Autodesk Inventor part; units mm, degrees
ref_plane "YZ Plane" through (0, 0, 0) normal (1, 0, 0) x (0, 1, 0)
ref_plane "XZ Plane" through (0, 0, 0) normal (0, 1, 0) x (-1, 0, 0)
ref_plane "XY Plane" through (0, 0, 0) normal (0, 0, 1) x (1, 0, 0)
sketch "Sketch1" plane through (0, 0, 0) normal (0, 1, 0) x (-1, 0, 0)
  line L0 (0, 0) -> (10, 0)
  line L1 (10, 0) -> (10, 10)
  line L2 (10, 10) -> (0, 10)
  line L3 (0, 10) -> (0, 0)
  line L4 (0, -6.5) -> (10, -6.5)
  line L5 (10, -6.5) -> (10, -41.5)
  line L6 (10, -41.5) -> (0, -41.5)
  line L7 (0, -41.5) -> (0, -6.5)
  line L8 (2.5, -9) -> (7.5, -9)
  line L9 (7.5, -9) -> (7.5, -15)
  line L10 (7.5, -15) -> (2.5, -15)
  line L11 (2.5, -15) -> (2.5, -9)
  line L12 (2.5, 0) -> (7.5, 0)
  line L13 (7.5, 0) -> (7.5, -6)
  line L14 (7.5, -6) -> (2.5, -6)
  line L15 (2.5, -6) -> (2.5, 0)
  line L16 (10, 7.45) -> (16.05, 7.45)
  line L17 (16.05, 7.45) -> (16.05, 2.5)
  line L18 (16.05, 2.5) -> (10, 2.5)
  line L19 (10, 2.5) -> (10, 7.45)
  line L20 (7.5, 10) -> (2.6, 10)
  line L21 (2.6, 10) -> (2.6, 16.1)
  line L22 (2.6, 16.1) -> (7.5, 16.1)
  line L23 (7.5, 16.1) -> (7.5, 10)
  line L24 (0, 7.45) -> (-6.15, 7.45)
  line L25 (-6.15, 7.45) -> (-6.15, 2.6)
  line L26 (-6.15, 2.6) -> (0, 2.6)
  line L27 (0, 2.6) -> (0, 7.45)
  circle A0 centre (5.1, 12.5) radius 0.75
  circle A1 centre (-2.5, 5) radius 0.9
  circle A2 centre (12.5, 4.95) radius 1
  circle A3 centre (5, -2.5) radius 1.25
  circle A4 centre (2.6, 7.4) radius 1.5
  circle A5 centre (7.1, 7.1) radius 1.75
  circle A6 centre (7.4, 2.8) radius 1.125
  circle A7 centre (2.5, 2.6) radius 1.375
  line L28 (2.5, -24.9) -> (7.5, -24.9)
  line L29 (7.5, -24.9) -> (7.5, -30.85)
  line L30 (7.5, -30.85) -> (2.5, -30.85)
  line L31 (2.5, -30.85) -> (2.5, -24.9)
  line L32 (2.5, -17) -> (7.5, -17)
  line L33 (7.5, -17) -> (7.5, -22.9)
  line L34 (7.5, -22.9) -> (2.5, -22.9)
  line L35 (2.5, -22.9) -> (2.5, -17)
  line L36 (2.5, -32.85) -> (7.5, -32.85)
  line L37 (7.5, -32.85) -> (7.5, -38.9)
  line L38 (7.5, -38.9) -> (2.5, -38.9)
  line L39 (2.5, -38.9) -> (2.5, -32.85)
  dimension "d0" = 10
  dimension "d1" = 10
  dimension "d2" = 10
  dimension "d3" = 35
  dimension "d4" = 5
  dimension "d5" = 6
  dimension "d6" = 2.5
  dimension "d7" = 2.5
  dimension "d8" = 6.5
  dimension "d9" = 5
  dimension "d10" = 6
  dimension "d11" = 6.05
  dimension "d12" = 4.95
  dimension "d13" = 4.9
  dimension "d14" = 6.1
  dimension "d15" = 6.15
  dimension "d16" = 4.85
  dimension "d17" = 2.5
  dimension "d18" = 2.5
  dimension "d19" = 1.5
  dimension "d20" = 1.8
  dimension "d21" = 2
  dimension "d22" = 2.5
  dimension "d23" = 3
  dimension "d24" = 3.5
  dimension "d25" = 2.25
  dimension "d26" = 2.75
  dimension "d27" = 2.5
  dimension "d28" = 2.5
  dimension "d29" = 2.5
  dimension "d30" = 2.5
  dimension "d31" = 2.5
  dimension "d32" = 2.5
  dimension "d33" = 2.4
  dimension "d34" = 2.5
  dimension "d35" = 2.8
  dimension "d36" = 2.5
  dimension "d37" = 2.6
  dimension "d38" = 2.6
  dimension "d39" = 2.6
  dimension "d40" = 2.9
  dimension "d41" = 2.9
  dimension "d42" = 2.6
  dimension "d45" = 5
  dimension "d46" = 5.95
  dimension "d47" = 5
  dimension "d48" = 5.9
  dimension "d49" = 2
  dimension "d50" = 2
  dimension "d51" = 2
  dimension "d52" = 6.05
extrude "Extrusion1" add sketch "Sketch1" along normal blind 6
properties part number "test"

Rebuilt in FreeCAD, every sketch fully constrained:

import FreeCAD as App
import Part
import Sketcher
from FreeCAD import Vector
Q = App.Units.Quantity


def add_polygon(sketch, points):
    """Adds a closed chain of lines whose ends are joined by coincident constraints."""
    first, n = sketch.GeometryCount, len(points)
    for a, b in zip(points, points[1:] + points[:1]):
        sketch.addGeometry(Part.LineSegment(App.Vector(*a, 0), App.Vector(*b, 0)), False)
    for i in range(n):
        sketch.addConstraint(Sketcher.Constraint("Coincident", first + i, 2, first + (i + 1) % n, 1))

doc = App.newDocument("Part")
params = doc.addObject("Spreadsheet::Sheet", "Params")
for row, (alias, value) in enumerate([
    ("sketch1_diameter", "3 mm"),
    ("sketch1_diameter2", "2 mm"),
    ("sketch1_diameter3", "3.5 mm"),
    ("sketch1_diameter4", "1.8 mm"),
    ("sketch1_diameter5", "1.5 mm"),
    ("pad1_length", "6 mm"),
], start=1):
    params.set(f"A{row}", alias)
    params.set(f"B{row}", "=" + value)
    params.setAlias(f"B{row}", alias)

body = doc.addObject("PartDesign::Body", "Body")
body.AllowCompound = True

sketch1 = doc.addObject("Sketcher::SketchObject", "Sketch")
body.addObject(sketch1)
sketch1.AttachmentSupport = (doc.XZ_Plane, [""])
sketch1.MapMode = "FlatFace"
add_polygon(sketch1, [(0, 2.6), (0, 0), (-2.5, 0), (-2.5, -6), (-7.5, -6), (-7.5, 0), (-10, 0), (-10, 2.5), (-16.1, 2.5), (-16.1, 7.5), (-10, 7.5), (-10, 10), (-7.5, 10), (-7.5, 16.1), (-2.6, 16.1), (-2.6, 10), (0, 10), (0, 7.5), (6.2, 7.5), (6.2, 2.6)])
sketch1.addGeometry(Part.Circle(Vector(-2.5, 2.6, 0), Vector(0, 0, 1), 1.4), False)
sketch1.addGeometry(Part.Circle(Vector(-2.6, 7.4, 0), Vector(0, 0, 1), 1.5), False)
sketch1.addGeometry(Part.Circle(Vector(-7.4, 2.8, 0), Vector(0, 0, 1), 1.1), False)
sketch1.addGeometry(Part.Circle(Vector(-7.1, 7.1, 0), Vector(0, 0, 1), 1.8), False)
sketch1.addGeometry(Part.Circle(Vector(2.5, 5, 0), Vector(0, 0, 1), 0.9), False)
sketch1.addGeometry(Part.Circle(Vector(-5.1, 12.5, 0), Vector(0, 0, 1), 0.8), False)
sketch1.addGeometry(Part.Circle(Vector(-12.5, 5, 0), Vector(0, 0, 1), 1), False)
sketch1.addGeometry(Part.Circle(Vector(-5, -2.5, 0), Vector(0, 0, 1), 1.2), False)
add_polygon(sketch1, [(-10, -6.5), (0, -6.5), (0, -41.5), (-10, -41.5)])
add_polygon(sketch1, [(-2.5, -38.9), (-2.5, -32.9), (-7.5, -32.9), (-7.5, -38.9)])
add_polygon(sketch1, [(-2.5, -30.9), (-2.5, -24.9), (-7.5, -24.9), (-7.5, -30.9)])
add_polygon(sketch1, [(-2.5, -22.9), (-2.5, -17), (-7.5, -17), (-7.5, -22.9)])
add_polygon(sketch1, [(-2.5, -15), (-2.5, -9), (-7.5, -9), (-7.5, -15)])
sketch1.addConstraint(Sketcher.Constraint("Vertical", 0))
sketch1.addConstraint(Sketcher.Constraint("Horizontal", 1))
sketch1.addConstraint(Sketcher.Constraint("Vertical", 2))
sketch1.addConstraint(Sketcher.Constraint("Horizontal", 3))
sketch1.addConstraint(Sketcher.Constraint("Vertical", 4))
sketch1.addConstraint(Sketcher.Constraint("Horizontal", 5))
sketch1.addConstraint(Sketcher.Constraint("Vertical", 6))
sketch1.addConstraint(Sketcher.Constraint("Horizontal", 7))
sketch1.addConstraint(Sketcher.Constraint("Vertical", 8))
sketch1.addConstraint(Sketcher.Constraint("Horizontal", 9))
sketch1.addConstraint(Sketcher.Constraint("Vertical", 10))
sketch1.addConstraint(Sketcher.Constraint("Horizontal", 11))
sketch1.addConstraint(Sketcher.Constraint("Vertical", 12))
sketch1.addConstraint(Sketcher.Constraint("Horizontal", 13))
sketch1.addConstraint(Sketcher.Constraint("Vertical", 14))
sketch1.addConstraint(Sketcher.Constraint("Horizontal", 15))
sketch1.addConstraint(Sketcher.Constraint("Vertical", 16))
sketch1.addConstraint(Sketcher.Constraint("Horizontal", 17))
sketch1.addConstraint(Sketcher.Constraint("Vertical", 18))
sketch1.addConstraint(Sketcher.Constraint("Horizontal", 19))
sketch1.addConstraint(Sketcher.Constraint("Horizontal", 28))
sketch1.addConstraint(Sketcher.Constraint("Vertical", 29))
sketch1.addConstraint(Sketcher.Constraint("Horizontal", 30))
sketch1.addConstraint(Sketcher.Constraint("Vertical", 31))
sketch1.addConstraint(Sketcher.Constraint("Vertical", 32))
sketch1.addConstraint(Sketcher.Constraint("Horizontal", 33))
sketch1.addConstraint(Sketcher.Constraint("Vertical", 34))
sketch1.addConstraint(Sketcher.Constraint("Horizontal", 35))
sketch1.addConstraint(Sketcher.Constraint("Vertical", 36))
sketch1.addConstraint(Sketcher.Constraint("Horizontal", 37))
sketch1.addConstraint(Sketcher.Constraint("Vertical", 38))
sketch1.addConstraint(Sketcher.Constraint("Horizontal", 39))
sketch1.addConstraint(Sketcher.Constraint("Vertical", 40))
sketch1.addConstraint(Sketcher.Constraint("Horizontal", 41))
sketch1.addConstraint(Sketcher.Constraint("Vertical", 42))
sketch1.addConstraint(Sketcher.Constraint("Horizontal", 43))
sketch1.addConstraint(Sketcher.Constraint("Vertical", 44))
sketch1.addConstraint(Sketcher.Constraint("Horizontal", 45))
sketch1.addConstraint(Sketcher.Constraint("Vertical", 46))
sketch1.addConstraint(Sketcher.Constraint("Horizontal", 47))
sketch1.addConstraint(Sketcher.Constraint("Coincident", 0, 2, -1, 1))
sketch1.addConstraint(Sketcher.Constraint("PointOnObject", 4, 2, -1))
sketch1.addConstraint(Sketcher.Constraint("PointOnObject", 15, 2, -2))
sketch1.addConstraint(Sketcher.Constraint("PointOnObject", 28, 2, -2))
sketch1.addConstraint(Sketcher.Constraint("Horizontal", 11, 2, 14, 2))
sketch1.addConstraint(Sketcher.Constraint("Horizontal", 9, 2, 16, 2))
sketch1.addConstraint(Sketcher.Constraint("Horizontal", 20, 3, 18, 2))
sketch1.addConstraint(Sketcher.Constraint("Vertical", 20, 3, 1, 2))
sketch1.addConstraint(Sketcher.Constraint("Vertical", 6, 2, 9, 2))
sketch1.addConstraint(Sketcher.Constraint("Vertical", 4, 2, 11, 2))
sketch1.addConstraint(Sketcher.Constraint("Vertical", 21, 3, 13, 2))
sketch1.addConstraint(Sketcher.Constraint("Vertical", 10, 2, 30, 2))
sketch1.addConstraint(Sketcher.Constraint("Vertical", 2, 2, 32, 2))
sketch1.addConstraint(Sketcher.Constraint("Vertical", 12, 2, 33, 2))
sketch1.addConstraint(Sketcher.Constraint("Vertical", 35, 2, 36, 2))
sketch1.addConstraint(Sketcher.Constraint("Vertical", 34, 2, 37, 2))
sketch1.addConstraint(Sketcher.Constraint("Vertical", 39, 2, 40, 2))
sketch1.addConstraint(Sketcher.Constraint("Vertical", 38, 2, 41, 2))
sketch1.addConstraint(Sketcher.Constraint("Vertical", 43, 2, 44, 2))
sketch1.addConstraint(Sketcher.Constraint("Vertical", 42, 2, 45, 2))
sketch1.addConstraint(Sketcher.Constraint("Equal", 1, 5))
sketch1.addConstraint(Sketcher.Constraint("Equal", 15, 0))
sketch1.addConstraint(Sketcher.Constraint("Equal", 11, 6))
sketch1.addConstraint(Sketcher.Constraint("Equal", 9, 32))
sketch1.addConstraint(Sketcher.Constraint("Equal", 4, 44))
sketch1.addConstraint(Sketcher.Constraint("Diameter", 21, Q("3 mm")))
sketch1.addConstraint(Sketcher.Constraint("Diameter", 26, Q("2 mm")))
sketch1.addConstraint(Sketcher.Constraint("Diameter", 23, Q("3.5 mm")))
sketch1.addConstraint(Sketcher.Constraint("Diameter", 24, Q("1.8 mm")))
sketch1.addConstraint(Sketcher.Constraint("Diameter", 25, Q("1.5 mm")))
sketch1.addConstraint(Sketcher.Constraint("Diameter", 27, Q("2.5 mm")))
sketch1.addConstraint(Sketcher.Constraint("Diameter", 20, Q("2.75 mm")))
sketch1.addConstraint(Sketcher.Constraint("Diameter", 22, Q("2.25 mm")))
sketch1.addConstraint(Sketcher.Constraint("DistanceX", 3, 2, 3, 1, Q("5 mm")))
sketch1.addConstraint(Sketcher.Constraint("DistanceX", 28, 1, 28, 2, Q("10 mm")))
sketch1.addConstraint(Sketcher.Constraint("DistanceY", 2, 2, 2, 1, Q("6 mm")))
sketch1.addConstraint(Sketcher.Constraint("DistanceY", 29, 2, 29, 1, Q("35 mm")))
sketch1.addConstraint(Sketcher.Constraint("DistanceX", 13, 1, 13, 2, Q("4.9 mm")))
sketch1.addConstraint(Sketcher.Constraint("DistanceY", 12, 1, 12, 2, Q("6.1 mm")))
sketch1.addConstraint(Sketcher.Constraint("DistanceY", 40, 1, 40, 2, Q("5.9 mm")))
sketch1.addConstraint(Sketcher.Constraint("DistanceY", -1, 1, 24, 3, Q("5 mm")))
sketch1.addConstraint(Sketcher.Constraint("DistanceX", 27, 3, -1, 1, Q("5 mm")))
sketch1.addConstraint(Sketcher.Constraint("DistanceY", -1, 1, 10, 2, Q("10 mm")))
sketch1.addConstraint(Sketcher.Constraint("DistanceX", 20, 3, 24, 3, Q("5 mm")))
sketch1.addConstraint(Sketcher.Constraint("DistanceX", 23, 3, 25, 3, Q("2 mm")))
sketch1.addConstraint(Sketcher.Constraint("DistanceX", 26, 3, 20, 3, Q("10 mm")))
sketch1.addConstraint(Sketcher.Constraint("DistanceY", 33, 2, 38, 2, Q("2 mm")))
sketch1.addConstraint(Sketcher.Constraint("DistanceY", 37, 2, 42, 2, Q("2 mm")))
sketch1.addConstraint(Sketcher.Constraint("DistanceY", 44, 2, 2, 2, Q("3 mm")))
sketch1.addConstraint(Sketcher.Constraint("DistanceY", 41, 2, 46, 2, Q("2 mm")))
sketch1.addConstraint(Sketcher.Constraint("DistanceX", 7, 2, 7, 1, Q("6.05 mm")))
sketch1.addConstraint(Sketcher.Constraint("DistanceX", 17, 1, 17, 2, Q("6.15 mm")))
sketch1.addConstraint(Sketcher.Constraint("DistanceY", 8, 1, 8, 2, Q("4.95 mm")))
sketch1.addConstraint(Sketcher.Constraint("DistanceY", 36, 1, 36, 2, Q("5.95 mm")))
sketch1.addConstraint(Sketcher.Constraint("DistanceY", -1, 1, 22, 3, Q("2.8 mm")))
sketch1.addConstraint(Sketcher.Constraint("DistanceY", 27, 3, -1, 1, Q("2.5 mm")))
sketch1.addConstraint(Sketcher.Constraint("DistanceY", 28, 2, -1, 1, Q("6.5 mm")))
sketch1.addConstraint(Sketcher.Constraint("DistanceX", 22, 3, 20, 3, Q("4.9 mm")))
sketch1.addConstraint(Sketcher.Constraint("DistanceY", 24, 3, 21, 3, Q("2.4 mm")))
sketch1.addConstraint(Sketcher.Constraint("DistanceX", 25, 3, 21, 3, Q("2.5 mm")))
sketch1.addConstraint(Sketcher.Constraint("DistanceY", 26, 3, 8, 2, Q("2.5 mm")))
sketch1.addConstraint(Sketcher.Constraint("DistanceY", 23, 3, 10, 2, Q("2.9 mm")))
sketch1.addConstraint(Sketcher.Constraint("DistanceY", 10, 2, 25, 3, Q("2.5 mm")))
sketch1.setExpression("Constraints[105]", "Params.sketch1_diameter")
sketch1.setExpression("Constraints[106]", "Params.sketch1_diameter2")
sketch1.setExpression("Constraints[107]", "Params.sketch1_diameter3")
sketch1.setExpression("Constraints[108]", "Params.sketch1_diameter4")
sketch1.setExpression("Constraints[109]", "Params.sketch1_diameter5")
pad1 = doc.addObject("PartDesign::Pad", "Pad")
body.addObject(pad1)
pad1.Profile = sketch1
pad1.setExpression("Length", "Params.pad1_length")
pad1.Reversed = True

doc.recompute()
